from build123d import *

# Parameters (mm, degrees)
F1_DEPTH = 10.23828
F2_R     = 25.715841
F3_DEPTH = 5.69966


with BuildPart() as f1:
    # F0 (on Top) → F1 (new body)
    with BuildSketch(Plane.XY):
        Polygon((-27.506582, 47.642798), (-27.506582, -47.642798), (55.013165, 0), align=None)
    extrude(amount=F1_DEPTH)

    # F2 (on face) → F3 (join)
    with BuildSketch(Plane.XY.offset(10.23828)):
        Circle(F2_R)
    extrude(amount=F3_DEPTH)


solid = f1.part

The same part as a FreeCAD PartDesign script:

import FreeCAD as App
import Part
import Sketcher

V = App.Vector
Q = App.Units.Quantity

doc = App.newDocument("Part")
params = doc.addObject("Spreadsheet::Sheet", "Params")
for row, (alias, value) in enumerate([
    ("pad1_length", "10.23828 mm"),
    ("pad2_length", "5.69966 mm"),
], start=1):
    params.set(f"A{row}", alias)
    params.set(f"B{row}", "=" + value)
    params.setAlias(f"B{row}", alias)

body = doc.addObject("PartDesign::Body", "Body")

sketch1 = body.newObject("Sketcher::SketchObject", "Sketch")
sketch1.AttachmentSupport = (doc.getObject("XY_Plane"), [""])
sketch1.MapMode = "FlatFace"
sketch1.addGeometry(Part.LineSegment(V(-28, 48, 0), V(-28, -48, 0)), False)
sketch1.addGeometry(Part.LineSegment(V(-28, -48, 0), V(55, 0, 0)), False)
sketch1.addGeometry(Part.LineSegment(V(55, 0, 0), V(-28, 48, 0)), False)
sketch1.addConstraint(Sketcher.Constraint("Coincident", 0, 2, 1, 1))
sketch1.addConstraint(Sketcher.Constraint("Coincident", 1, 2, 2, 1))
sketch1.addConstraint(Sketcher.Constraint("Coincident", 2, 2, 0, 1))
sketch1.addConstraint(Sketcher.Constraint("Vertical", 0))
sketch1.addConstraint(Sketcher.Constraint("PointOnObject", 1, 2, -1))
sketch1.addConstraint(Sketcher.Constraint("Equal", 1, 2))
sketch1.addConstraint(Sketcher.Constraint("Angle", 1, Q("30 deg")))
sketch1.addConstraint(Sketcher.Constraint("DistanceY", 0, 2, 0, 1, 95.285596))
sketch1.addConstraint(Sketcher.Constraint("DistanceX", 0, 2, -1, 1, 27.506582))
pad1 = body.newObject("PartDesign::Pad", "Pad")
pad1.Profile = sketch1
pad1.setExpression("Length", "Params.pad1_length")

sketch2 = body.newObject("Sketcher::SketchObject", "Sketch001")
sketch2.AttachmentSupport = (doc.getObject("XY_Plane"), [""])
sketch2.MapMode = "FlatFace"
sketch2.AttachmentOffset = App.Placement(V(0, 0, 10.23828), App.Rotation())
sketch2.addGeometry(Part.Circle(V(0, 0, 0), V(0, 0, 1), 26), False)
sketch2.addConstraint(Sketcher.Constraint("Coincident", 0, 3, -1, 1))
sketch2.addConstraint(Sketcher.Constraint("Diameter", 0, 51.431682))
pad2 = body.newObject("PartDesign::Pad", "Pad001")
pad2.Profile = sketch2
pad2.setExpression("Length", "Params.pad2_length")

doc.recompute()
